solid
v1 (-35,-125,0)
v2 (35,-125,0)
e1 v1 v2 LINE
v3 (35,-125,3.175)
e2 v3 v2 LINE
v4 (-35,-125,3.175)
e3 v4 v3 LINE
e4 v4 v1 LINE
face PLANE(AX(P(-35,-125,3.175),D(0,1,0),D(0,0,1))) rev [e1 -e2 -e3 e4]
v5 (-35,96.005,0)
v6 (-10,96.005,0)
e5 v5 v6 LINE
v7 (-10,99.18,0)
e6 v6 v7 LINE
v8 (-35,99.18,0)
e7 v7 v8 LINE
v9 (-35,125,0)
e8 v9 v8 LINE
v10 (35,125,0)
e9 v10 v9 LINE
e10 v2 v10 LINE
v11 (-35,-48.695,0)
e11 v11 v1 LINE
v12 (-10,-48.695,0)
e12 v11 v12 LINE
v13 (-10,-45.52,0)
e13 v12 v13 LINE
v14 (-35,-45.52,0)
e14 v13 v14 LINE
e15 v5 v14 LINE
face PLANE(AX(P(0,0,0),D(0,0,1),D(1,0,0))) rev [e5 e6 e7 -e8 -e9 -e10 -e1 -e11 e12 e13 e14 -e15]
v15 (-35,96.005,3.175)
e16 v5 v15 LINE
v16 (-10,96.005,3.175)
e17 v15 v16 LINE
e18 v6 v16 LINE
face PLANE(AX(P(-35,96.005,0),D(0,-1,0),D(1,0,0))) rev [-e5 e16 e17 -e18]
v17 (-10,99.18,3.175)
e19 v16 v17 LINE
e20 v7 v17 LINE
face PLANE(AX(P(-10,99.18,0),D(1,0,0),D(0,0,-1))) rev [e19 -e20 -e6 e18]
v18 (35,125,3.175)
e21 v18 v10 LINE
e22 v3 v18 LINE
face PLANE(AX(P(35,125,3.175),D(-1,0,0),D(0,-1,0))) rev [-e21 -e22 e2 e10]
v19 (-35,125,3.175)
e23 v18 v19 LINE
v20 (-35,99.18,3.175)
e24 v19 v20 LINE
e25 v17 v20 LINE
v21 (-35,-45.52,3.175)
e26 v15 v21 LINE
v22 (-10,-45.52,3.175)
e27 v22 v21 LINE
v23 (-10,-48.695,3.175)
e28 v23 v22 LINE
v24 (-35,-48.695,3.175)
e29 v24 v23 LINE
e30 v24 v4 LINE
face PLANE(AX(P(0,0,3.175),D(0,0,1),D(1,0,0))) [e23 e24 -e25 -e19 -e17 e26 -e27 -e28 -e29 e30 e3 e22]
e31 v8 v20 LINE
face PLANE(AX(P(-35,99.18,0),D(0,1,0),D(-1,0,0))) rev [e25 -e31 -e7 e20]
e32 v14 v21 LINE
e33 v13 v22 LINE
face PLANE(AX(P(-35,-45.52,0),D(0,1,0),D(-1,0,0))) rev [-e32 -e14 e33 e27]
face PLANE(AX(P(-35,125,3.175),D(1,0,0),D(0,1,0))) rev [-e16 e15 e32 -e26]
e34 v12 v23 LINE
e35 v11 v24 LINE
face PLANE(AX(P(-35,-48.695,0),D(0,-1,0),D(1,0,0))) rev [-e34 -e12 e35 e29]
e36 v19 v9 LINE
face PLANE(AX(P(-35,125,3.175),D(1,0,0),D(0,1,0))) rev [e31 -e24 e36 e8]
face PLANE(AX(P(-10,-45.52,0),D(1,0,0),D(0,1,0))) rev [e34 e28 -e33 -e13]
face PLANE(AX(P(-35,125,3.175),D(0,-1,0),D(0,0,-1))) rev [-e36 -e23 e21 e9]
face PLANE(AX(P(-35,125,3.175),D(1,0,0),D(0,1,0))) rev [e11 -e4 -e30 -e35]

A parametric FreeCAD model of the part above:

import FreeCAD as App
import Part
import Sketcher

doc = App.newDocument("Part")
params = doc.addObject("Spreadsheet::Sheet", "Params")
for row, (alias, value) in enumerate([
    ("sketch1_width", "70 mm"),
    ("sketch1_height", "250 mm"),
    ("pad1_length", "3.175 mm"),
    ("sketch2_width", "25 mm"),
    ("pocket1_length", "3.175 mm"),
], start=1):
    params.set(f"A{row}", alias)
    params.set(f"B{row}", "=" + value)
    params.setAlias(f"B{row}", alias)

body = doc.addObject("PartDesign::Body", "Body")

# Sketch on XY plane
sketch1 = doc.addObject("Sketcher::SketchObject", "Sketch")
body.addObject(sketch1)
sketch1.AttachmentSupport = (doc.XY_Plane, [""])
sketch1.MapMode = "FlatFace"
sketch1.addGeometry([
    Part.LineSegment(App.Vector(-35, 125, 0), App.Vector(-35, -125, 0)),
    Part.LineSegment(App.Vector(-35, -125, 0), App.Vector(35, -125, 0)),
    Part.LineSegment(App.Vector(35, -125, 0), App.Vector(35, 125, 0)),
    Part.LineSegment(App.Vector(35, 125, 0), App.Vector(-35, 125, 0)),
], False)
sketch1.addConstraint([
    Sketcher.Constraint("Coincident", 0, 2, 1, 1),
    Sketcher.Constraint("Coincident", 1, 2, 2, 1),
    Sketcher.Constraint("Coincident", 2, 2, 3, 1),
    Sketcher.Constraint("Coincident", 3, 2, 0, 1),
    Sketcher.Constraint("Vertical", 0),
    Sketcher.Constraint("Horizontal", 1),
    Sketcher.Constraint("Vertical", 2),
    Sketcher.Constraint("Horizontal", 3),
    Sketcher.Constraint("Symmetric", 0, 2, 2, 2, -1, 1),
    Sketcher.Constraint("DistanceX", 1, 1, 1, 2, 70.0),
    Sketcher.Constraint("DistanceY", 0, 2, 0, 1, 250.0),
])
sketch1.setExpression("Constraints[9]", "Params.sketch1_width")
sketch1.setExpression("Constraints[10]", "Params.sketch1_height")
pad1 = doc.addObject("PartDesign::Pad", "Pad")
body.addObject(pad1)
pad1.Profile = sketch1
pad1.setExpression("Length", "Params.pad1_length")

# Sketch on XY plane
sketch2 = doc.addObject("Sketcher::SketchObject", "Sketch001")
body.addObject(sketch2)
sketch2.AttachmentSupport = (doc.XY_Plane, [""])
sketch2.MapMode = "FlatFace"
sketch2.AttachmentOffset = App.Placement(App.Vector(0, 0, 3.175), App.Rotation())
sketch2.addGeometry([
    Part.LineSegment(App.Vector(-35, 99.18, 0), App.Vector(-35, 96.005, 0)),  # 0
    Part.LineSegment(App.Vector(-35, 96.005, 0), App.Vector(-10, 96.005, 0)),  # 1
    Part.LineSegment(App.Vector(-10, 96.005, 0), App.Vector(-10, 99.18, 0)),  # 2
    Part.LineSegment(App.Vector(-10, 99.18, 0), App.Vector(-35, 99.18, 0)),  # 3
    Part.LineSegment(App.Vector(-35, -45.52, 0), App.Vector(-35, -48.695, 0)),  # 4
    Part.LineSegment(App.Vector(-35, -48.695, 0), App.Vector(-10, -48.695, 0)),  # 5
    Part.LineSegment(App.Vector(-10, -48.695, 0), App.Vector(-10, -45.52, 0)),  # 6
    Part.LineSegment(App.Vector(-10, -45.52, 0), App.Vector(-35, -45.52, 0)),  # 7
], False)
sketch2.addConstraint([
    Sketcher.Constraint("Coincident", 0, 2, 1, 1),
    Sketcher.Constraint("Coincident", 1, 2, 2, 1),
    Sketcher.Constraint("Coincident", 2, 2, 3, 1),
    Sketcher.Constraint("Coincident", 3, 2, 0, 1),
    Sketcher.Constraint("Coincident", 4, 2, 5, 1),
    Sketcher.Constraint("Coincident", 5, 2, 6, 1),
    Sketcher.Constraint("Coincident", 6, 2, 7, 1),
    Sketcher.Constraint("Coincident", 7, 2, 4, 1),
    Sketcher.Constraint("Vertical", 0),
    Sketcher.Constraint("Horizontal", 1),
    Sketcher.Constraint("Vertical", 2),
    Sketcher.Constraint("Horizontal", 3),
    Sketcher.Constraint("Vertical", 4),
    Sketcher.Constraint("Horizontal", 5),
    Sketcher.Constraint("Vertical", 6),
    Sketcher.Constraint("Horizontal", 7),
    Sketcher.Constraint("Vertical", 3, 2, 4, 2),
    Sketcher.Constraint("Vertical", 2, 2, 5, 2),
    Sketcher.Constraint("Equal", 2, 4),
    Sketcher.Constraint("DistanceX", 1, 1, 1, 2, 25.0),
    Sketcher.Constraint("DistanceX", 0, 2, -1, 1, 35.0),
    Sketcher.Constraint("DistanceY", 4, 2, 0, 2, 144.7),
    Sketcher.Constraint("DistanceY", 0, 2, 0, 1, 3.175),
    Sketcher.Constraint("DistanceY", -1, 1, 2, 2, 99.18),
])
sketch2.setExpression("Constraints[19]", "Params.sketch2_width")
pocket1 = doc.addObject("PartDesign::Pocket", "Pocket")
body.addObject(pocket1)
pocket1.Profile = sketch2
pocket1.setExpression("Length", "Params.pocket1_length")

doc.recompute()
